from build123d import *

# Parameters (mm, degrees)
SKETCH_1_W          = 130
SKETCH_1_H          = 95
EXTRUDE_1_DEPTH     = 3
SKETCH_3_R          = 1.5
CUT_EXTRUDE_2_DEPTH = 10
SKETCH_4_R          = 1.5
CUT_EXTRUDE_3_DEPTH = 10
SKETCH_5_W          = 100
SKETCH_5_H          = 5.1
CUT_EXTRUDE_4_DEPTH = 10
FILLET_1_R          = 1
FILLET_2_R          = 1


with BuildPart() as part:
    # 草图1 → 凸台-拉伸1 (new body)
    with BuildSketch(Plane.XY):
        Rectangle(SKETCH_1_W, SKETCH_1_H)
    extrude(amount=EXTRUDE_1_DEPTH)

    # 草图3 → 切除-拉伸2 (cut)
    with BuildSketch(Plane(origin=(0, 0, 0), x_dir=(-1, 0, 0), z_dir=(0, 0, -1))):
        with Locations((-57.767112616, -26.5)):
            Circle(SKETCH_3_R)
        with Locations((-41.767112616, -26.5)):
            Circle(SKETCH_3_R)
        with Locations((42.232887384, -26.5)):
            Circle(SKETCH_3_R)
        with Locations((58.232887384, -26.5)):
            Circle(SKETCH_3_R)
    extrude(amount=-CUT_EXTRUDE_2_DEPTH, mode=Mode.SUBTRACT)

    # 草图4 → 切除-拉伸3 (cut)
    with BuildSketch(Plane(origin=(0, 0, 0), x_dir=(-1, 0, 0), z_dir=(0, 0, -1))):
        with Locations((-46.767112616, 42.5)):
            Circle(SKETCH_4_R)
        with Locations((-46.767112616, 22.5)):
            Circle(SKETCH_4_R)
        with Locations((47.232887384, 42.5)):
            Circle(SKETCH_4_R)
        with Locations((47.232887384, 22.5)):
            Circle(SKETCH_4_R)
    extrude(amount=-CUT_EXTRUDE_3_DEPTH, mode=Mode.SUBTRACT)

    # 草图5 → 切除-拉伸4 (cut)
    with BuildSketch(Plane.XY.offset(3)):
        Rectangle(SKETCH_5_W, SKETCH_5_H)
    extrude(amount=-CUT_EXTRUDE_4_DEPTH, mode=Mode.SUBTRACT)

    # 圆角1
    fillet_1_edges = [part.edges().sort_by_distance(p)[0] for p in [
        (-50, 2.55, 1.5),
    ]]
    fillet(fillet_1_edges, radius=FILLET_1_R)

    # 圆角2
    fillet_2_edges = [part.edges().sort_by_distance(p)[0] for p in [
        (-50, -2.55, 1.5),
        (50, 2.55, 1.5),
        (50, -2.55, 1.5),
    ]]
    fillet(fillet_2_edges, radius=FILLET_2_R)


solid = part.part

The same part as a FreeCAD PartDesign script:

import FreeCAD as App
import Part
import Sketcher

V = App.Vector


def edges_at(feature, points):
    """Names of the edges that pass closest to the given points."""
    edges = feature.Shape.Edges
    near = lambda p: min(range(len(edges)), key=lambda i: edges[i].distToShape(Part.Vertex(*p))[0])
    return sorted({f"Edge{near(p) + 1}" for p in points})

doc = App.newDocument("Part")
body = doc.addObject("PartDesign::Body", "Body")

sketch1 = doc.addObject("Sketcher::SketchObject", "Sketch")
body.addObject(sketch1)
sketch1.AttachmentSupport = (doc.XY_Plane, [""])
sketch1.MapMode = "FlatFace"
sketch1.addGeometry(Part.LineSegment(V(-65, 48, 0), V(-65, -48, 0)), False)
sketch1.addGeometry(Part.LineSegment(V(-65, -48, 0), V(65, -48, 0)), False)
sketch1.addGeometry(Part.LineSegment(V(65, -48, 0), V(65, 48, 0)), False)
sketch1.addGeometry(Part.LineSegment(V(65, 48, 0), V(-65, 48, 0)), False)
sketch1.addConstraint(Sketcher.Constraint("Coincident", 0, 2, 1, 1))
sketch1.addConstraint(Sketcher.Constraint("Coincident", 1, 2, 2, 1))
sketch1.addConstraint(Sketcher.Constraint("Coincident", 2, 2, 3, 1))
sketch1.addConstraint(Sketcher.Constraint("Coincident", 3, 2, 0, 1))
sketch1.addConstraint(Sketcher.Constraint("Vertical", 0))
sketch1.addConstraint(Sketcher.Constraint("Horizontal", 1))
sketch1.addConstraint(Sketcher.Constraint("Vertical", 2))
sketch1.addConstraint(Sketcher.Constraint("Horizontal", 3))
sketch1.addConstraint(Sketcher.Constraint("Symmetric", 0, 2, 2, 2, -1, 1))
sketch1.addConstraint(Sketcher.Constraint("DistanceX", 1, 1, 1, 2, 130.0))
sketch1.addConstraint(Sketcher.Constraint("DistanceY", 0, 2, 0, 1, 95.0))
pad1 = doc.addObject("PartDesign::Pad", "Pad")
body.addObject(pad1)
pad1.Profile = sketch1
pad1.Length = 3

sketch2 = doc.addObject("Sketcher::SketchObject", "Sketch001")
body.addObject(sketch2)
sketch2.AttachmentSupport = (doc.XY_Plane, [""])
sketch2.MapMode = "FlatFace"
sketch2.addGeometry(Part.Circle(V(57.8, -26.5, 0), V(0, 0, 1), 1.5), False)
sketch2.addGeometry(Part.Circle(V(41.8, -26.5, 0), V(0, 0, 1), 1.5), False)
sketch2.addGeometry(Part.Circle(V(-42.2, -26.5, 0), V(0, 0, 1), 1.5), False)
sketch2.addGeometry(Part.Circle(V(-58.2, -26.5, 0), V(0, 0, 1), 1.5), False)
sketch2.addConstraint(Sketcher.Constraint("Equal", 0, 1))
sketch2.addConstraint(Sketcher.Constraint("Equal", 1, 2))
sketch2.addConstraint(Sketcher.Constraint("Equal", 2, 3))
sketch2.addConstraint(Sketcher.Constraint("Horizontal", 0, 3, 1, 3))
sketch2.addConstraint(Sketcher.Constraint("Horizontal", 1, 3, 2, 3))
sketch2.addConstraint(Sketcher.Constraint("Horizontal", 2, 3, 3, 3))
sketch2.addConstraint(Sketcher.Constraint("Diameter", 0, 3.0))
sketch2.addConstraint(Sketcher.Constraint("DistanceX", 1, 3, 0, 3, 16.0))
sketch2.addConstraint(Sketcher.Constraint("DistanceX", 2, 3, 1, 3, 84.0))
sketch2.addConstraint(Sketcher.Constraint("DistanceX", 3, 3, 2, 3, 16.0))
sketch2.addConstraint(Sketcher.Constraint("DistanceY", 0, 3, -1, 1, 26.5))
sketch2.addConstraint(Sketcher.Constraint("DistanceX", -1, 1, 0, 3, 57.767113))
pocket1 = doc.addObject("PartDesign::Pocket", "Pocket")
body.addObject(pocket1)
pocket1.Profile = sketch2
pocket1.Length = 10
pocket1.Reversed = True

sketch3 = doc.addObject("Sketcher::SketchObject", "Sketch002")
body.addObject(sketch3)
sketch3.AttachmentSupport = (doc.XY_Plane, [""])
sketch3.MapMode = "FlatFace"
sketch3.addGeometry(Part.Circle(V(46.8, 42.5, 0), V(0, 0, 1), 1.5), False)
sketch3.addGeometry(Part.Circle(V(46.8, 22.5, 0), V(0, 0, 1), 1.5), False)
sketch3.addGeometry(Part.Circle(V(-47.2, 42.5, 0), V(0, 0, 1), 1.5), False)
sketch3.addGeometry(Part.Circle(V(-47.2, 22.5, 0), V(0, 0, 1), 1.5), False)
sketch3.addConstraint(Sketcher.Constraint("Equal", 0, 1))
sketch3.addConstraint(Sketcher.Constraint("Equal", 1, 2))
sketch3.addConstraint(Sketcher.Constraint("Equal", 2, 3))
sketch3.addConstraint(Sketcher.Constraint("Horizontal", 0, 3, 2, 3))
sketch3.addConstraint(Sketcher.Constraint("Horizontal", 1, 3, 3, 3))
sketch3.addConstraint(Sketcher.Constraint("Vertical", 0, 3, 1, 3))
sketch3.addConstraint(Sketcher.Constraint("Vertical", 2, 3, 3, 3))
sketch3.addConstraint(Sketcher.Constraint("Diameter", 0, 3.0))
sketch3.addConstraint(Sketcher.Constraint("DistanceY", 1, 3, 0, 3, 20.0))
sketch3.addConstraint(Sketcher.Constraint("DistanceX", 2, 3, 0, 3, 94.0))
sketch3.addConstraint(Sketcher.Constraint("DistanceY", -1, 1, 0, 3, 42.5))
sketch3.addConstraint(Sketcher.Constraint("DistanceX", -1, 1, 0, 3, 46.767113))
pocket2 = doc.addObject("PartDesign::Pocket", "Pocket001")
body.addObject(pocket2)
pocket2.Profile = sketch3
pocket2.Length = 10
pocket2.Reversed = True

sketch4 = doc.addObject("Sketcher::SketchObject", "Sketch003")
body.addObject(sketch4)
sketch4.AttachmentSupport = (doc.XY_Plane, [""])
sketch4.MapMode = "FlatFace"
sketch4.AttachmentOffset = App.Placement(V(0, 0, 3), App.Rotation())
sketch4.addGeometry(Part.LineSegment(V(-50, 3, 0), V(-50, -3, 0)), False)
sketch4.addGeometry(Part.LineSegment(V(-50, -3, 0), V(50, -3, 0)), False)
sketch4.addGeometry(Part.LineSegment(V(50, -3, 0), V(50, 3, 0)), False)
sketch4.addGeometry(Part.LineSegment(V(50, 3, 0), V(-50, 3, 0)), False)
sketch4.addConstraint(Sketcher.Constraint("Coincident", 0, 2, 1, 1))
sketch4.addConstraint(Sketcher.Constraint("Coincident", 1, 2, 2, 1))
sketch4.addConstraint(Sketcher.Constraint("Coincident", 2, 2, 3, 1))
sketch4.addConstraint(Sketcher.Constraint("Coincident", 3, 2, 0, 1))
sketch4.addConstraint(Sketcher.Constraint("Vertical", 0))
sketch4.addConstraint(Sketcher.Constraint("Horizontal", 1))
sketch4.addConstraint(Sketcher.Constraint("Vertical", 2))
sketch4.addConstraint(Sketcher.Constraint("Horizontal", 3))
sketch4.addConstraint(Sketcher.Constraint("Symmetric", 0, 2, 2, 2, -1, 1))
sketch4.addConstraint(Sketcher.Constraint("DistanceX", 1, 1, 1, 2, 100.0))
sketch4.addConstraint(Sketcher.Constraint("DistanceY", 0, 2, 0, 1, 5.1))
pocket3 = doc.addObject("PartDesign::Pocket", "Pocket002")
body.addObject(pocket3)
pocket3.Profile = sketch4
pocket3.Length = 10
doc.recompute()

fillet = doc.addObject("PartDesign::Fillet", "Fillet")
body.addObject(fillet)
fillet.Base = (pocket3, edges_at(pocket3, [(-50, 2.55, 1.5)]))
fillet.Radius = 1
doc.recompute()

fillet2 = doc.addObject("PartDesign::Fillet", "Fillet001")
body.addObject(fillet2)
fillet2.Base = (fillet, edges_at(fillet, [(-50, -2.55, 1.5), (50, 2.55, 1.5), (50, -2.55, 1.5)]))
fillet2.Radius = 1

doc.recompute()
